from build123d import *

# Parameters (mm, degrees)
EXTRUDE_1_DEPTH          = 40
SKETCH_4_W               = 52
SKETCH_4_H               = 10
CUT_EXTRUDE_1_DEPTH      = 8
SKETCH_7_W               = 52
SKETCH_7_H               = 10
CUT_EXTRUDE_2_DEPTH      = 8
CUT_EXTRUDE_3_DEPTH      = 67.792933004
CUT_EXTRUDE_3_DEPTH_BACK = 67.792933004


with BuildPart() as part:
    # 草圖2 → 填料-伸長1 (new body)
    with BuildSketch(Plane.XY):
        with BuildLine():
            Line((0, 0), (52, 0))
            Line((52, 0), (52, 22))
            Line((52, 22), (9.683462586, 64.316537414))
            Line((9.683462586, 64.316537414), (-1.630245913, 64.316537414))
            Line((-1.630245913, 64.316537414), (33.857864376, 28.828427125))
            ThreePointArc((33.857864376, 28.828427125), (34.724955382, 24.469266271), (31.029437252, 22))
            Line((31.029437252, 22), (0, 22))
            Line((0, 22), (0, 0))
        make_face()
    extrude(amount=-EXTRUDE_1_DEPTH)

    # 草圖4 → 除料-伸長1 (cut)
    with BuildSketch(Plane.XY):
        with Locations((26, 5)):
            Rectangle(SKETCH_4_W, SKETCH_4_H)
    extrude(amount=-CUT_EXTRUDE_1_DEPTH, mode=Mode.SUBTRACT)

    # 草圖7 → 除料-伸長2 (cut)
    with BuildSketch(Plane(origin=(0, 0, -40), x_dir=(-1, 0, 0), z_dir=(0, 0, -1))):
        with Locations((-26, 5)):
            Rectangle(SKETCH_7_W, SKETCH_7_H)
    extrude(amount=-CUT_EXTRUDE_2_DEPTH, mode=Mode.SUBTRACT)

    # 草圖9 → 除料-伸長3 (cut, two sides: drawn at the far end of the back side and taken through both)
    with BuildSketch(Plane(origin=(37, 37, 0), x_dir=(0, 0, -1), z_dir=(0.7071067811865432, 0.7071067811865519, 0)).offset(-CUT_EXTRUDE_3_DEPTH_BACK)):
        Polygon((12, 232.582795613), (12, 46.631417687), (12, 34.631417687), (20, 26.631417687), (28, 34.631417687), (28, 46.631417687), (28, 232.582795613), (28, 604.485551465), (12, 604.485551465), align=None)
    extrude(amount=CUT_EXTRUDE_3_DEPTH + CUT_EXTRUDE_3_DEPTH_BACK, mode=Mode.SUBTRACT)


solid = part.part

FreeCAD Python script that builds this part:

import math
import FreeCAD as App
import Part
import Sketcher
from FreeCAD import Vector
Q = App.Units.Quantity


def add_polygon(sketch, points):
    """Adds a closed chain of lines whose ends are joined by coincident constraints."""
    first, n = sketch.GeometryCount, len(points)
    for a, b in zip(points, points[1:] + points[:1]):
        sketch.addGeometry(Part.LineSegment(App.Vector(*a, 0), App.Vector(*b, 0)), False)
    for i in range(n):
        sketch.addConstraint(Sketcher.Constraint("Coincident", first + i, 2, first + (i + 1) % n, 1))

doc = App.newDocument("Part")
params = doc.addObject("Spreadsheet::Sheet", "Params")
for row, (alias, value) in enumerate([
    ("sketch1_radius", "4 mm"),
    ("sketch1_width", "52 mm"),
    ("sketch1_height", "22 mm"),
    ("pad1_length", "40 mm"),
    ("sketch2_width", "52 mm"),
    ("sketch2_height", "10 mm"),
    ("pocket1_length", "8 mm"),
    ("sketch3_width", "52 mm"),
    ("sketch3_height", "10 mm"),
    ("pocket2_length", "8 mm"),
    ("sketch4_width", "16 mm"),
], start=1):
    params.set(f"A{row}", alias)
    params.set(f"B{row}", "=" + value)
    params.setAlias(f"B{row}", alias)

body = doc.addObject("PartDesign::Body", "Body")

sketch1 = doc.addObject("Sketcher::SketchObject", "Sketch")
body.addObject(sketch1)
sketch1.AttachmentSupport = (doc.XY_Plane, [""])
sketch1.MapMode = "FlatFace"
sketch1.addGeometry(Part.LineSegment(Vector(0, 0, 0), Vector(52, 0, 0)), False)
sketch1.addGeometry(Part.LineSegment(Vector(52, 0, 0), Vector(52, 22, 0)), False)
sketch1.addGeometry(Part.LineSegment(Vector(52, 22, 0), Vector(9.683463, 64.316537, 0)), False)
sketch1.addGeometry(Part.LineSegment(Vector(9.683463, 64.316537, 0), Vector(-1.630246, 64.316537, 0)), False)
sketch1.addGeometry(Part.LineSegment(Vector(-1.630246, 64.316537, 0), Vector(33.857864, 28.828427, 0)), False)
sketch1.addGeometry(Part.ArcOfCircle(Part.Circle(Vector(31.029437, 26, 0), Vector(0, 0, 1), 4), math.radians(-90), math.radians(45)), False)
sketch1.addGeometry(Part.LineSegment(Vector(31.029437, 22, 0), Vector(0, 22, 0)), False)
sketch1.addGeometry(Part.LineSegment(Vector(0, 22, 0), Vector(0, 0, 0)), False)
sketch1.addConstraint(Sketcher.Constraint("Coincident", 0, 2, 1, 1))
sketch1.addConstraint(Sketcher.Constraint("Coincident", 1, 2, 2, 1))
sketch1.addConstraint(Sketcher.Constraint("Coincident", 2, 2, 3, 1))
sketch1.addConstraint(Sketcher.Constraint("Coincident", 3, 2, 4, 1))
sketch1.addConstraint(Sketcher.Constraint("Tangent", 4, 2, 5, 2))
sketch1.addConstraint(Sketcher.Constraint("Tangent", 5, 1, 6, 1))
sketch1.addConstraint(Sketcher.Constraint("Coincident", 6, 2, 7, 1))
sketch1.addConstraint(Sketcher.Constraint("Coincident", 7, 2, 0, 1))
sketch1.addConstraint(Sketcher.Constraint("Horizontal", 0))
sketch1.addConstraint(Sketcher.Constraint("Vertical", 1))
sketch1.addConstraint(Sketcher.Constraint("Horizontal", 3))
sketch1.addConstraint(Sketcher.Constraint("Horizontal", 6))
sketch1.addConstraint(Sketcher.Constraint("Vertical", 7))
sketch1.addConstraint(Sketcher.Constraint("Coincident", 7, 2, -1, 1))
sketch1.addConstraint(Sketcher.Constraint("Parallel", 2, 4))
sketch1.addConstraint(Sketcher.Constraint("Horizontal", 1, 2, 5, 1))
sketch1.addConstraint(Sketcher.Constraint("Radius", 5, 4.0))
sketch1.addConstraint(Sketcher.Constraint("DistanceX", 0, 1, 0, 2, 52.0))
sketch1.addConstraint(Sketcher.Constraint("DistanceY", 1, 1, 1, 2, 22.0))
sketch1.addConstraint(Sketcher.Constraint("Angle", 2, Q("135 deg")))
sketch1.addConstraint(Sketcher.Constraint("DistanceX", 3, 2, 3, 1, 11.313708))
sketch1.addConstraint(Sketcher.Constraint("DistanceX", 2, 2, 4, 2, 24.174402))
sketch1.setExpression("Constraints[16]", "Params.sketch1_radius")
sketch1.setExpression("Constraints[17]", "Params.sketch1_width")
sketch1.setExpression("Constraints[18]", "Params.sketch1_height")
pad1 = doc.addObject("PartDesign::Pad", "Pad")
body.addObject(pad1)
pad1.Profile = sketch1
pad1.setExpression("Length", "Params.pad1_length")
pad1.Reversed = True

sketch2 = doc.addObject("Sketcher::SketchObject", "Sketch001")
body.addObject(sketch2)
sketch2.AttachmentSupport = (doc.XY_Plane, [""])
sketch2.MapMode = "FlatFace"
add_polygon(sketch2, [(0, 10), (0, 0), (52, 0), (52, 10)])
sketch2.addConstraint(Sketcher.Constraint("Vertical", 0))
sketch2.addConstraint(Sketcher.Constraint("Horizontal", 1))
sketch2.addConstraint(Sketcher.Constraint("Vertical", 2))
sketch2.addConstraint(Sketcher.Constraint("Horizontal", 3))
sketch2.addConstraint(Sketcher.Constraint("Coincident", 0, 2, -1, 1))
sketch2.addConstraint(Sketcher.Constraint("DistanceX", 1, 1, 1, 2, 52.0))
sketch2.addConstraint(Sketcher.Constraint("DistanceY", 0, 2, 0, 1, 10.0))
sketch2.setExpression("Constraints[9]", "Params.sketch2_width")
sketch2.setExpression("Constraints[10]", "Params.sketch2_height")
pocket1 = doc.addObject("PartDesign::Pocket", "Pocket")
body.addObject(pocket1)
pocket1.Profile = sketch2
pocket1.setExpression("Length", "Params.pocket1_length")

sketch3 = doc.addObject("Sketcher::SketchObject", "Sketch002")
body.addObject(sketch3)
sketch3.AttachmentSupport = (doc.XY_Plane, [""])
sketch3.MapMode = "FlatFace"
sketch3.AttachmentOffset = App.Placement(Vector(0, 0, -40), App.Rotation())
add_polygon(sketch3, [(52, 10), (52, 0), (0, 0), (0, 10)])
sketch3.addConstraint(Sketcher.Constraint("Vertical", 0))
sketch3.addConstraint(Sketcher.Constraint("Horizontal", 1))
sketch3.addConstraint(Sketcher.Constraint("Vertical", 2))
sketch3.addConstraint(Sketcher.Constraint("Horizontal", 3))
sketch3.addConstraint(Sketcher.Constraint("Coincident", 1, 2, -1, 1))
sketch3.addConstraint(Sketcher.Constraint("DistanceX", 1, 2, 1, 1, 52.0))
sketch3.addConstraint(Sketcher.Constraint("DistanceY", 0, 2, 0, 1, 10.0))
sketch3.setExpression("Constraints[9]", "Params.sketch3_width")
sketch3.setExpression("Constraints[10]", "Params.sketch3_height")
pocket2 = doc.addObject("PartDesign::Pocket", "Pocket001")
body.addObject(pocket2)
pocket2.Profile = sketch3
pocket2.setExpression("Length", "Params.pocket2_length")
pocket2.Reversed = True

sketch4 = doc.addObject("Sketcher::SketchObject", "Sketch003")
body.addObject(sketch4)
sketch4.Placement = App.Placement(Vector(37, 37, 0), App.Rotation(Vector(0, 0, -1), Vector(-0.707106781, 0.707106781, 0), Vector(0.707106781, 0.707106781, 0), "ZXY"))
add_polygon(sketch4, [(12, 34.631418), (20, 26.631418), (28, 34.631418), (28, 604.485551), (12, 604.485551)])
sketch4.addConstraint(Sketcher.Constraint("Vertical", 2))
sketch4.addConstraint(Sketcher.Constraint("Horizontal", 3))
sketch4.addConstraint(Sketcher.Constraint("Vertical", 4))
sketch4.addConstraint(Sketcher.Constraint("Perpendicular", 0, 1))
sketch4.addConstraint(Sketcher.Constraint("Horizontal", 1, 2, 4, 2))
sketch4.addConstraint(Sketcher.Constraint("Equal", 0, 1))
sketch4.addConstraint(Sketcher.Constraint("DistanceX", 3, 2, 3, 1, 16.0))
sketch4.addConstraint(Sketcher.Constraint("DistanceX", -1, 1, 0, 2, 20.0))
sketch4.addConstraint(Sketcher.Constraint("DistanceY", 2, 1, 2, 2, 569.854133))
sketch4.addConstraint(Sketcher.Constraint("DistanceY", -1, 1, 2, 2, 604.485551))
sketch4.setExpression("Constraints[11]", "Params.sketch4_width")
pocket3 = doc.addObject("PartDesign::Pocket", "Pocket002")
body.addObject(pocket3)
pocket3.Profile = sketch4
pocket3.Type = "ThroughAll"
pocket3.Midplane = True

doc.recompute()
